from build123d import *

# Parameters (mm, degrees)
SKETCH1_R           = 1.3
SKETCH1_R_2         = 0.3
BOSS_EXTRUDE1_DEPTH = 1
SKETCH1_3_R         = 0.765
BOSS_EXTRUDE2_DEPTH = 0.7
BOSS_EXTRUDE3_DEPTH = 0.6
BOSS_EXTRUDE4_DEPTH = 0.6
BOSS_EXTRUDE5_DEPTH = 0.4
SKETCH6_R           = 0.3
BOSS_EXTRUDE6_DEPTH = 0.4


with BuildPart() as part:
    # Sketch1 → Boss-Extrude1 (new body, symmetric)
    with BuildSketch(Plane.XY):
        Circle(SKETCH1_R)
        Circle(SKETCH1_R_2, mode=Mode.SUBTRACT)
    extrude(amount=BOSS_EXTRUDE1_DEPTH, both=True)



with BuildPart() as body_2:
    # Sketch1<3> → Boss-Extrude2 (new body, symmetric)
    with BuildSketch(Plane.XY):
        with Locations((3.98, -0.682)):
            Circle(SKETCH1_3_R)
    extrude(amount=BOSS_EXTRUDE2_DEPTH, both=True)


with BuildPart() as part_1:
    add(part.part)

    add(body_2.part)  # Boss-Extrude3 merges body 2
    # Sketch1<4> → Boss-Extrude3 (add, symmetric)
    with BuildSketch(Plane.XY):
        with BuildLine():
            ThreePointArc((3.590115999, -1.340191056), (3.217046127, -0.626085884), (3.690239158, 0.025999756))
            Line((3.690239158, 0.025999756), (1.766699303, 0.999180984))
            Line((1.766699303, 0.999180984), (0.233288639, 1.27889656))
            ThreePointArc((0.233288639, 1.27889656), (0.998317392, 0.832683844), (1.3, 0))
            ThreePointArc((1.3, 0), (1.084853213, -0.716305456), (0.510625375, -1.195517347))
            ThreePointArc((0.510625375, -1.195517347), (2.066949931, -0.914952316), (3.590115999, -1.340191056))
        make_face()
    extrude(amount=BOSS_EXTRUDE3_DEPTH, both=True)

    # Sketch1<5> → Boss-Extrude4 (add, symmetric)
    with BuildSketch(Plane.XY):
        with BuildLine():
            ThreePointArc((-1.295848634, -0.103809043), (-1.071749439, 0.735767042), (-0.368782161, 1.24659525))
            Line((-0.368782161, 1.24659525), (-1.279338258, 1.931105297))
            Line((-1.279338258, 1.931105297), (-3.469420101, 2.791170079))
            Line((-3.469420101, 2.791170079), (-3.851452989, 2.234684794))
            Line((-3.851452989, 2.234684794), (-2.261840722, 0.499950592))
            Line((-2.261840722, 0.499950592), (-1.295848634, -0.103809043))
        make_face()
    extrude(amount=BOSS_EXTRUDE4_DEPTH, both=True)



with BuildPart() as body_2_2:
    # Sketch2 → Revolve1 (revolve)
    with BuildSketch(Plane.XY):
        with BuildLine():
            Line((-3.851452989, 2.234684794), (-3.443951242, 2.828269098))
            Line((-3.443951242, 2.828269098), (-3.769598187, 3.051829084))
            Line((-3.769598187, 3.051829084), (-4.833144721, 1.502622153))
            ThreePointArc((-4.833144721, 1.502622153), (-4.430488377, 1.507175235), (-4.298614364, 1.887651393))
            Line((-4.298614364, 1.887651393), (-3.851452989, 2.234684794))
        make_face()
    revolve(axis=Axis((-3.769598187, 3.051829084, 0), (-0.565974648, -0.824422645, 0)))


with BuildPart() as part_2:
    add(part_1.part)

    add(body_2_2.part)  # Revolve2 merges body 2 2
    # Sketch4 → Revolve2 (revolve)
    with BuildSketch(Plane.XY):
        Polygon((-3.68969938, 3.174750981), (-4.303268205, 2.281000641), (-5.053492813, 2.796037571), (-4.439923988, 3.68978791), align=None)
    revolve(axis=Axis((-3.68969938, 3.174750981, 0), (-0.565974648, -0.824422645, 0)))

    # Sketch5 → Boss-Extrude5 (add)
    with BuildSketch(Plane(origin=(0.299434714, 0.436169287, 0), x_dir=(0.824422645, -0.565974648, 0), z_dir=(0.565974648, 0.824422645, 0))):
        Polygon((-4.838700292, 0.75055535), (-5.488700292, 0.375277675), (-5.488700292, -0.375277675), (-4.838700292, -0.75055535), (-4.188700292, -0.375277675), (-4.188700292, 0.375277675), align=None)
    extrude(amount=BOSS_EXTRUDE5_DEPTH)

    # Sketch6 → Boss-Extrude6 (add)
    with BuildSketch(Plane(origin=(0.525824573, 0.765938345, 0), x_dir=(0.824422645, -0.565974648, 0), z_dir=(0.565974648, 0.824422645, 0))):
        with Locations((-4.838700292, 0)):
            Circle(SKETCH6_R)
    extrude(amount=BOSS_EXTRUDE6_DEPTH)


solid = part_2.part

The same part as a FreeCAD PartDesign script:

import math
import FreeCAD as App
import Part
import Sketcher
Q = App.Units.Quantity


def add_polygon(sketch, points):
    """Adds a closed chain of lines whose ends are joined by coincident constraints."""
    first, n = sketch.GeometryCount, len(points)
    for a, b in zip(points, points[1:] + points[:1]):
        sketch.addGeometry(Part.LineSegment(App.Vector(*a, 0), App.Vector(*b, 0)), False)
    for i in range(n):
        sketch.addConstraint(Sketcher.Constraint("Coincident", first + i, 2, first + (i + 1) % n, 1))

doc = App.newDocument("Part")
body = doc.addObject("PartDesign::Body", "Body")

sketch1 = body.newObject("Sketcher::SketchObject", "Sketch")
sketch1.AttachmentSupport = (doc.getObject("XY_Plane"), [""])
sketch1.MapMode = "FlatFace"
sketch1.addGeometry([
    Part.Circle(App.Vector(0, 0, 0), App.Vector(0, 0, 1), 1.3),
    Part.Circle(App.Vector(0, 0, 0), App.Vector(0, 0, 1), 0.3),
], False)
sketch1.addConstraint([
    Sketcher.Constraint("Coincident", 0, 3, -1, 1),
    Sketcher.Constraint("Coincident", 1, 3, -1, 1),
    Sketcher.Constraint("Diameter", 0, 2.6),
    Sketcher.Constraint("Diameter", 1, 0.6),
])
pad1 = body.newObject("PartDesign::Pad", "Pad")
pad1.Profile = sketch1
pad1.Length = 2
pad1.Midplane = True
body2 = doc.addObject("PartDesign::Body", "Body001")

sketch2 = body2.newObject("Sketcher::SketchObject", "Sketch001")
sketch2.AttachmentSupport = (doc.getObject("XY_Plane001"), [""])
sketch2.MapMode = "FlatFace"
sketch2.addGeometry(Part.Circle(App.Vector(4, -0.7, 0), App.Vector(0, 0, 1), 0.8), False)
sketch2.addConstraint([
    Sketcher.Constraint("Diameter", 0, 1.53),
    Sketcher.Constraint("DistanceX", -1, 1, 0, 3, 3.98),
    Sketcher.Constraint("DistanceY", 0, 3, -1, 1, 0.682),
])
pad2 = body2.newObject("PartDesign::Pad", "Pad001")
pad2.Profile = sketch2
pad2.Length = 1.4
pad2.Midplane = True
body.AllowCompound = True
doc.recompute()

boolean = body.newObject("PartDesign::Boolean", "Boolean")
boolean.Type = "Fuse"
boolean.addObjects([body2])

sketch3 = body.newObject("Sketcher::SketchObject", "Sketch002")
sketch3.AttachmentSupport = (doc.getObject("XY_Plane"), [""])
sketch3.MapMode = "FlatFace"
sketch3.addGeometry([
    Part.ArcOfCircle(Part.Circle(App.Vector(3.98, -0.682, 0), App.Vector(0, 0, 1), 0.765), math.radians(112.257659), math.radians(239.359328)),
    Part.LineSegment(App.Vector(3.690239, 0.026, 0), App.Vector(1.766699, 0.999181, 0)),
    Part.LineSegment(App.Vector(1.766699, 0.999181, 0), App.Vector(0.233289, 1.278897, 0)),
    Part.ArcOfCircle(Part.Circle(App.Vector(0, 0, 0), App.Vector(0, 0, 1), 1.3), math.radians(0), math.radians(79.662111)),
    Part.ArcOfCircle(Part.Circle(App.Vector(0, 0, 0), App.Vector(0, 0, 1), 1.3), math.radians(-66.871865), math.radians(0)),
    Part.ArcOfCircle(Part.Circle(App.Vector(1.900854, -4.450433, 0), App.Vector(0, 0, 1), 3.53938), math.radians(61.492337), math.radians(113.128135)),
], False)
sketch3.addConstraint([
    Sketcher.Constraint("Coincident", 0, 1, 1, 1),
    Sketcher.Constraint("Coincident", 1, 2, 2, 1),
    Sketcher.Constraint("Coincident", 2, 2, 3, 2),
    Sketcher.Constraint("Coincident", 3, 1, 4, 2),
    Sketcher.Constraint("Coincident", 4, 1, 5, 2),
    Sketcher.Constraint("Coincident", 5, 1, 0, 2),
    Sketcher.Constraint("Coincident", 3, 3, -1, 1),
    Sketcher.Constraint("Coincident", 4, 3, -1, 1),
    Sketcher.Constraint("PointOnObject", 3, 1, -1),
    Sketcher.Constraint("Radius", 3, 1.3),
    Sketcher.Constraint("Radius", 0, 0.765),
    Sketcher.Constraint("DistanceX", -1, 1, 0, 3, 3.98),
    Sketcher.Constraint("Radius", 5, 3.53938),
    Sketcher.Constraint("DistanceY", 0, 3, -1, 1, 0.682),
    Sketcher.Constraint("DistanceY", -1, 1, 0, 1, 0.026),
    Sketcher.Constraint("DistanceX", -1, 1, 1, 2, 1.766699),
    Sketcher.Constraint("DistanceY", 4, 1, 1, 2, 2.194698),
    Sketcher.Constraint("Distance", 1, 2.15571),
    Sketcher.Constraint("DistanceX", -1, 1, 2, 2, 0.233289),
    Sketcher.Constraint("DistanceY", 5, 1, -1, 1, 1.340191),
])
pad3 = body.newObject("PartDesign::Pad", "Pad002")
pad3.Profile = sketch3
pad3.Length = 1.2
pad3.Midplane = True

sketch4 = body.newObject("Sketcher::SketchObject", "Sketch003")
sketch4.AttachmentSupport = (doc.getObject("XY_Plane"), [""])
sketch4.MapMode = "FlatFace"
sketch4.addGeometry([
    Part.ArcOfCircle(Part.Circle(App.Vector(0, 0, 0), App.Vector(0, 0, 1), 1.3), math.radians(106), math.radians(185)),
    Part.LineSegment(App.Vector(-0.4, 1.2, 0), App.Vector(-1.3, 1.9, 0)),
    Part.LineSegment(App.Vector(-1.3, 1.9, 0), App.Vector(-3.5, 2.8, 0)),
    Part.LineSegment(App.Vector(-3.5, 2.8, 0), App.Vector(-3.9, 2.2, 0)),
    Part.LineSegment(App.Vector(-3.9, 2.2, 0), App.Vector(-2.3, 0.5, 0)),
    Part.LineSegment(App.Vector(-2.3, 0.5, 0), App.Vector(-1.3, -0.1, 0)),
], False)
sketch4.addConstraint([
    Sketcher.Constraint("Coincident", 0, 1, 1, 1),
    Sketcher.Constraint("Coincident", 1, 2, 2, 1),
    Sketcher.Constraint("Coincident", 2, 2, 3, 1),
    Sketcher.Constraint("Coincident", 3, 2, 4, 1),
    Sketcher.Constraint("Coincident", 4, 2, 5, 1),
    Sketcher.Constraint("Coincident", 5, 2, 0, 2),
    Sketcher.Constraint("Coincident", 0, 3, -1, 1),
    Sketcher.Constraint("Equal", 2, 4),
    Sketcher.Constraint("Equal", 1, 5),
    Sketcher.Constraint("Radius", 0, 1.3),
    Sketcher.Constraint("Angle", 3, Q("-124.47 deg")),
    Sketcher.Constraint("Distance", 3, 0.675),
    Sketcher.Constraint("Distance", 1, 1.139152),
    Sketcher.Constraint("DistanceX", 1, 2, -1, 1, 1.279338),
    Sketcher.Constraint("DistanceX", 2, 2, -1, 1, 3.46942),
    Sketcher.Constraint("DistanceY", -1, 1, 2, 2, 2.79117),
    Sketcher.Constraint("DistanceX", 4, 2, -1, 1, 2.261841),
    Sketcher.Constraint("DistanceY", -1, 1, 4, 2, 0.499951),
])
pad4 = body.newObject("PartDesign::Pad", "Pad003")
pad4.Profile = sketch4
pad4.Length = 1.2
pad4.Midplane = True
body3 = doc.addObject("PartDesign::Body", "Body002")

sketch5 = body3.newObject("Sketcher::SketchObject", "Sketch004")
sketch5.AttachmentSupport = (doc.getObject("XY_Plane002"), [""])
sketch5.MapMode = "FlatFace"
sketch5.addGeometry([
    Part.LineSegment(App.Vector(-3.85, 2.23, 0), App.Vector(-3.44, 2.83, 0)),
    Part.LineSegment(App.Vector(-3.44, 2.83, 0), App.Vector(-3.77, 3.05, 0)),
    Part.LineSegment(App.Vector(-3.77, 3.05, 0), App.Vector(-4.83, 1.5, 0)),
    Part.ArcOfCircle(Part.Circle(App.Vector(-4.64, 1.79, 0), App.Vector(0, 0, 1), 0.35), math.radians(-124), math.radians(16)),
    Part.LineSegment(App.Vector(-4.3, 1.89, 0), App.Vector(-3.85, 2.23, 0)),
], False)
sketch5.addGeometry(Part.LineSegment(App.Vector(-3.77, 3.05, 0), App.Vector(-4.83, 1.5, 0)), True)
sketch5.addConstraint([
    Sketcher.Constraint("Coincident", 0, 2, 1, 1),
    Sketcher.Constraint("Coincident", 1, 2, 2, 1),
    Sketcher.Constraint("Coincident", 2, 2, 3, 1),
    Sketcher.Constraint("Coincident", 3, 2, 4, 1),
    Sketcher.Constraint("Coincident", 4, 2, 0, 1),
    Sketcher.Constraint("Coincident", 5, 1, 1, 2),
    Sketcher.Constraint("Coincident", 5, 2, 2, 2),
    Sketcher.Constraint("Perpendicular", 0, 1),
    Sketcher.Constraint("Perpendicular", 1, 2),
    Sketcher.Constraint("Radius", 3, 0.35),
    Sketcher.Constraint("Angle", 0, Q("55.53 deg")),
    Sketcher.Constraint("Distance", 0, 0.72),
    Sketcher.Constraint("Distance", 1, 0.395),
    Sketcher.Constraint("DistanceX", 1, 2, -1, 1, 3.769598),
    Sketcher.Constraint("DistanceY", 3, 3, 0, 2, 1.037099),
    Sketcher.Constraint("DistanceX", 3, 3, 4, 2, 0.783601),
    Sketcher.Constraint("DistanceY", -1, 1, 3, 3, 1.79117),
    Sketcher.Constraint("DistanceY", -1, 1, 3, 2, 1.887651),
])
revolution = body3.newObject("PartDesign::Revolution", "Revolution")
revolution.Profile = sketch5
revolution.ReferenceAxis = (sketch5, ["Axis0"])
revolution.Angle = 360
body.AllowCompound = True
doc.recompute()

boolean2 = body.newObject("PartDesign::Boolean", "Boolean001")
boolean2.Type = "Fuse"
boolean2.addObjects([body3])

sketch6 = body.newObject("Sketcher::SketchObject", "Sketch005")
sketch6.AttachmentSupport = (doc.getObject("XY_Plane"), [""])
sketch6.MapMode = "FlatFace"
add_polygon(sketch6, [(-4.3, 2.3), (-3.7, 3.2), (-4.4, 3.7), (-5.1, 2.8)])
sketch6.addGeometry(Part.LineSegment(App.Vector(-3.7, 3.2, 0), App.Vector(-4.3, 2.3, 0)), True)
sketch6.addConstraint([
    Sketcher.Constraint("Coincident", 4, 1, 0, 2),
    Sketcher.Constraint("Coincident", 4, 2, 3, 2),
    Sketcher.Constraint("Perpendicular", 0, 1),
    Sketcher.Constraint("Perpendicular", 1, 2),
    Sketcher.Constraint("Perpendicular", 2, 3),
    Sketcher.Constraint("Angle", 0, Q("55.53 deg")),
    Sketcher.Constraint("Distance", 1, 0.91),
    Sketcher.Constraint("DistanceY", -1, 1, 3, 2, 2.281001),
    Sketcher.Constraint("DistanceX", 0, 2, -1, 1, 3.689699),
    Sketcher.Constraint("DistanceY", -1, 1, 0, 2, 3.174751),
])
revolution2 = body.newObject("PartDesign::Revolution", "Revolution001")
revolution2.Profile = sketch6
revolution2.ReferenceAxis = (sketch6, ["Axis0"])
revolution2.Angle = 360

sketch7 = body.newObject("Sketcher::SketchObject", "Sketch006")
sketch7.Placement = App.Placement(App.Vector(0.299435, 0.436169, 0), App.Rotation(App.Vector(0.824422645, -0.565974648, 0), App.Vector(0, 0, -1), App.Vector(0.565974648, 0.824422645, 0), "ZXY"))
add_polygon(sketch7, [(-4.8, 0.8), (-5.5, 0.4), (-5.5, -0.4), (-4.8, -0.8), (-4.2, -0.4), (-4.2, 0.4)])
sketch7.addConstraint([
    Sketcher.Constraint("Vertical", 1),
    Sketcher.Constraint("Vertical", 4),
    Sketcher.Constraint("Symmetric", 2, 2, 5, 2, -1),
    Sketcher.Constraint("Parallel", 0, 3),
    Sketcher.Constraint("Parallel", 2, 5),
    Sketcher.Constraint("Horizontal", 1, 2, 3, 2),
    Sketcher.Constraint("Horizontal", 0, 2, 4, 2),
    Sketcher.Constraint("Angle", 0, Q("-150 deg")),
    Sketcher.Constraint("DistanceX", 1, 2, 3, 2, 1.3),
    Sketcher.Constraint("DistanceX", 0, 2, -1, 1, 5.4887),
    Sketcher.Constraint("DistanceY", 1, 2, 1, 1, 0.750555),
])
pad5 = body.newObject("PartDesign::Pad", "Pad004")
pad5.Profile = sketch7
pad5.Length = 0.4

sketch8 = body.newObject("Sketcher::SketchObject", "Sketch007")
sketch8.Placement = App.Placement(App.Vector(0.525825, 0.765938, 0), App.Rotation(App.Vector(0.824422645, -0.565974648, 0), App.Vector(0, 0, -1), App.Vector(0.565974648, 0.824422645, 0), "ZXY"))
sketch8.addGeometry(Part.Circle(App.Vector(-4.84, 0, 0), App.Vector(0, 0, 1), 0.3), False)
sketch8.addConstraint([
    Sketcher.Constraint("PointOnObject", 0, 3, -1),
    Sketcher.Constraint("Diameter", 0, 0.6),
    Sketcher.Constraint("DistanceX", 0, 3, -1, 1, 4.8387),
])
pad6 = body.newObject("PartDesign::Pad", "Pad005")
pad6.Profile = sketch8
pad6.Length = 0.4

doc.recompute()
